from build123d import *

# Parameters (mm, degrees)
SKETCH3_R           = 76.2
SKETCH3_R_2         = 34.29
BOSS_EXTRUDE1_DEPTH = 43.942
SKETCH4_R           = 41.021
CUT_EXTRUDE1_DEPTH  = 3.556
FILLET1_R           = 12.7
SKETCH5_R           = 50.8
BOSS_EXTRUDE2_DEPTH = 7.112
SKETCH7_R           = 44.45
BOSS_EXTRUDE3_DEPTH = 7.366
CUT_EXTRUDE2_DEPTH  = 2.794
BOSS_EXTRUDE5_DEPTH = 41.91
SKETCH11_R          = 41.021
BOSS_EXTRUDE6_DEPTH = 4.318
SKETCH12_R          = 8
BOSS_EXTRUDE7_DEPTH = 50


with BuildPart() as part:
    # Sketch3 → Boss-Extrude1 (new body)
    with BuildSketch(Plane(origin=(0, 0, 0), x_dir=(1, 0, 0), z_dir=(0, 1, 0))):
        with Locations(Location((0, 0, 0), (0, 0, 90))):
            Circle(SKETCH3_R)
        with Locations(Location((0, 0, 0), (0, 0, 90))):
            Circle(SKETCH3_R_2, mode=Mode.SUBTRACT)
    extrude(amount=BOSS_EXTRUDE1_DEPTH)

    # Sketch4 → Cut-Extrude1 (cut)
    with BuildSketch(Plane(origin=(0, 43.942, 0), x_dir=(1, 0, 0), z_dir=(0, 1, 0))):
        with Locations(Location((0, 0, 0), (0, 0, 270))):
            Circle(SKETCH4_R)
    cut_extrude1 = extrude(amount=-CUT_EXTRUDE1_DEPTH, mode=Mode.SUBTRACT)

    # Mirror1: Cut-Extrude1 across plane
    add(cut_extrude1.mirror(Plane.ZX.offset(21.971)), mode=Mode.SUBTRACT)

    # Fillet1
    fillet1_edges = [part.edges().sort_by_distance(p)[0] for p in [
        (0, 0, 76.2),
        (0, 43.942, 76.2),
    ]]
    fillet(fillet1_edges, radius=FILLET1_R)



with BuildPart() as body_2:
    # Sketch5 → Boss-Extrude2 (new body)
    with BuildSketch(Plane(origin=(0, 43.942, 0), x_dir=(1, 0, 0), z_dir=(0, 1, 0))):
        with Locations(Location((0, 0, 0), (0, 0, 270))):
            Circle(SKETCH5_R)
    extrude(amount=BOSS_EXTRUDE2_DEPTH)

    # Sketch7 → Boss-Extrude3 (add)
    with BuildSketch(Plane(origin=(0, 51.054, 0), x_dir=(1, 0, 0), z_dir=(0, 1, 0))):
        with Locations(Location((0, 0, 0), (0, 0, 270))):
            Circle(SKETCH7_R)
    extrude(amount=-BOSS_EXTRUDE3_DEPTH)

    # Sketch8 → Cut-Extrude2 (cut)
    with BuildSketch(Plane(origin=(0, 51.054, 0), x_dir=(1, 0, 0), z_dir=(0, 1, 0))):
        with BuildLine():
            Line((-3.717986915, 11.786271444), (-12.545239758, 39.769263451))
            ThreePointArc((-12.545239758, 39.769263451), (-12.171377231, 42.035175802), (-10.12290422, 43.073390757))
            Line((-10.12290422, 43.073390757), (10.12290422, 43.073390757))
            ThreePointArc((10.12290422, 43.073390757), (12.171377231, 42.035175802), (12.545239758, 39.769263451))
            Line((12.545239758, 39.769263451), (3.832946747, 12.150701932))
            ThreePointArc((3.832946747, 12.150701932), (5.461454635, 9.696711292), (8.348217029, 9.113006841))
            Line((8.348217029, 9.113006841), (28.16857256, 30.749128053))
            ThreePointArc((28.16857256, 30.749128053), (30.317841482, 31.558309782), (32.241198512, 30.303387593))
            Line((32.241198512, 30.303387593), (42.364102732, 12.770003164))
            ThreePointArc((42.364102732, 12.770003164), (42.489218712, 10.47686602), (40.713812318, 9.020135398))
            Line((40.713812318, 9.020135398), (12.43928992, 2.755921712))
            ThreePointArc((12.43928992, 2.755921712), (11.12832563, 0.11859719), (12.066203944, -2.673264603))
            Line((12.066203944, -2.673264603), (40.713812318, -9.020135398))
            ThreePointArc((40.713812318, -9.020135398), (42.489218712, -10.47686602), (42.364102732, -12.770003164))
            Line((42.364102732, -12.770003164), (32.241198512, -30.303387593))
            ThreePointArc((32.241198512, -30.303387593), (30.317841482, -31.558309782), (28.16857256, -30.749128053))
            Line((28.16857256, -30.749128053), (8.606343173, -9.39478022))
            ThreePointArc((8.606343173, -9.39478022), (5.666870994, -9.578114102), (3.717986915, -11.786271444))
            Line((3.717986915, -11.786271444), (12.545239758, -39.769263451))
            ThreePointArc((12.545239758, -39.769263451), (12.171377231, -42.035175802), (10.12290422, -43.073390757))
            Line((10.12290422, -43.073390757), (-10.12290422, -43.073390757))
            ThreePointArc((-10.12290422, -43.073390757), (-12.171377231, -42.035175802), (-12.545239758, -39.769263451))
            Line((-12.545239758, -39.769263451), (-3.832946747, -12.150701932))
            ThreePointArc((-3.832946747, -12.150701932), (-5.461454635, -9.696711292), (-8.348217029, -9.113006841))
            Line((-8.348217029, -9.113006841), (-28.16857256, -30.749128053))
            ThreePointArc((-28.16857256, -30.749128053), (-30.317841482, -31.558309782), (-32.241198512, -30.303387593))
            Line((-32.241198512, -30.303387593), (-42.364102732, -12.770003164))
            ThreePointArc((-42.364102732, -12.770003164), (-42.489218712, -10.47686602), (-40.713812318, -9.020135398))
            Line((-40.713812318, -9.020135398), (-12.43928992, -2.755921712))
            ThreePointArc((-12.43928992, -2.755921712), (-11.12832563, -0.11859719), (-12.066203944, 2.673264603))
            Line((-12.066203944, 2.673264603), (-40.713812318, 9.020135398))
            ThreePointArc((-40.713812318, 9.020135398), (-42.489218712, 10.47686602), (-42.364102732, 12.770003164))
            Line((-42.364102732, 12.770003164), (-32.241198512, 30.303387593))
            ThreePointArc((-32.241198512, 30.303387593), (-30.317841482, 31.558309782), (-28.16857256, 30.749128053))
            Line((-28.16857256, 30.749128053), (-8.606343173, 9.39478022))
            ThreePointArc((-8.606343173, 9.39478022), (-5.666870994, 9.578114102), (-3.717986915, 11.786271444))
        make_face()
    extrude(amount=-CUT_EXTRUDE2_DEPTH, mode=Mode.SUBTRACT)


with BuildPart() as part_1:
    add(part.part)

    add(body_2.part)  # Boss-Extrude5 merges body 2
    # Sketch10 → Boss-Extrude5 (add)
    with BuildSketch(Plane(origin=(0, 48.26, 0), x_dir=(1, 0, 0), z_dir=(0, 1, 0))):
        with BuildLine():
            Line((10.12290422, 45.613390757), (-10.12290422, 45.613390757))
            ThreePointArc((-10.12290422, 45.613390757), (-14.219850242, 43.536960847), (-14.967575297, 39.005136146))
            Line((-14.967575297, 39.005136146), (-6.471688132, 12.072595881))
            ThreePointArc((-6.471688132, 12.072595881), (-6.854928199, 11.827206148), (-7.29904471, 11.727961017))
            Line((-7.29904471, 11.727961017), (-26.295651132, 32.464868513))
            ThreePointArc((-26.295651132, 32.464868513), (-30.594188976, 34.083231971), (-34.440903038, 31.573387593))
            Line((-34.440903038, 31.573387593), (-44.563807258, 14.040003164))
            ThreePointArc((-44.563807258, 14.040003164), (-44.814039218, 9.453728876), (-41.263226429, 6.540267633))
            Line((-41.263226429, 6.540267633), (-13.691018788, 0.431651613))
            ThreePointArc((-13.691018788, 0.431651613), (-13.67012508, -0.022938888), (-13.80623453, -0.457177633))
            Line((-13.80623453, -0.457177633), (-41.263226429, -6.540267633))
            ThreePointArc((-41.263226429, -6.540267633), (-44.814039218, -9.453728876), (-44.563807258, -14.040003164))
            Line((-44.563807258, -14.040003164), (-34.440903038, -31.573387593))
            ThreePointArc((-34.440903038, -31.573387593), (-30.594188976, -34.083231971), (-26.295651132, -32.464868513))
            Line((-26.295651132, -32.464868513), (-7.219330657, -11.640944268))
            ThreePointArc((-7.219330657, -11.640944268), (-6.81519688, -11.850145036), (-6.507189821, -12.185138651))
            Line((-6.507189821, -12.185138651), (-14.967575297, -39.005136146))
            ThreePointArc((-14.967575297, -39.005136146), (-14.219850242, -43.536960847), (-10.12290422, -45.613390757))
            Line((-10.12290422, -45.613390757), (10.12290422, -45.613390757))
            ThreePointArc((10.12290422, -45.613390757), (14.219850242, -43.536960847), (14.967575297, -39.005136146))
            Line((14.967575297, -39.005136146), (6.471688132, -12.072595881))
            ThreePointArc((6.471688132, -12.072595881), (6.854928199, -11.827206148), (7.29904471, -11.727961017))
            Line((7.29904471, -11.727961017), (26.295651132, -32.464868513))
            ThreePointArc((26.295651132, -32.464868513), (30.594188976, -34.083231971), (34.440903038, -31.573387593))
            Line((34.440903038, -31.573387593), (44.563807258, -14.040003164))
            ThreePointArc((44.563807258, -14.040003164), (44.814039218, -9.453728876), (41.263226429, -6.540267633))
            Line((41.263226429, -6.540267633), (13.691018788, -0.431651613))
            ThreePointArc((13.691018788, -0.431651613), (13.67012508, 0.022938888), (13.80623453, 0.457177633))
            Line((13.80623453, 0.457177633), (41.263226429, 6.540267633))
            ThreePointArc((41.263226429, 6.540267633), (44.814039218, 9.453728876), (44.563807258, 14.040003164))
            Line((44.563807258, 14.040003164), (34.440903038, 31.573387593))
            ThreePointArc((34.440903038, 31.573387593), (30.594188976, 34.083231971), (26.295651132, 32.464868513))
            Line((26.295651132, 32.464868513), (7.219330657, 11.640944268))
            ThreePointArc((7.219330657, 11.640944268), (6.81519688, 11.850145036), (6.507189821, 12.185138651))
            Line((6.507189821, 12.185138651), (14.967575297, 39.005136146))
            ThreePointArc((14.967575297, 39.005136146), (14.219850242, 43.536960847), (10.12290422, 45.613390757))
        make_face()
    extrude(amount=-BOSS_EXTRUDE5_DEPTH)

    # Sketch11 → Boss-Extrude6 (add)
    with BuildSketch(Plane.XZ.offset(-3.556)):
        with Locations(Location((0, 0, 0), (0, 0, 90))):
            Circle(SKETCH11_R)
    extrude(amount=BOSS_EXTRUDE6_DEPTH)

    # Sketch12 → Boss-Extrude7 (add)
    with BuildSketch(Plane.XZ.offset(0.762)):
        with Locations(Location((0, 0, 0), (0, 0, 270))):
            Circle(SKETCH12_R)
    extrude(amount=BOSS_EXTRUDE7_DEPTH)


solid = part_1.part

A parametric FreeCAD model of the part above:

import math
import FreeCAD as App
import Part
import Sketcher
from FreeCAD import Vector
Q = App.Units.Quantity


def edges_at(feature, points):
    """Names of the edges that pass closest to the given points."""
    edges = feature.Shape.Edges
    near = lambda p: min(range(len(edges)), key=lambda i: edges[i].distToShape(Part.Vertex(*p))[0])
    return sorted({f"Edge{near(p) + 1}" for p in points})

doc = App.newDocument("Part")
body = doc.addObject("PartDesign::Body", "Body")

sketch1 = body.newObject("Sketcher::SketchObject", "Sketch")
sketch1.AttachmentSupport = (doc.getObject("XZ_Plane"), [""])
sketch1.MapMode = "FlatFace"
sketch1.addGeometry(Part.Circle(Vector(0, 0, 0), Vector(0, 0, 1), 76), False)
sketch1.addGeometry(Part.Circle(Vector(0, 0, 0), Vector(0, 0, 1), 34), False)
sketch1.addConstraint(Sketcher.Constraint("Coincident", 0, 3, -1, 1))
sketch1.addConstraint(Sketcher.Constraint("Coincident", 1, 3, -1, 1))
sketch1.addConstraint(Sketcher.Constraint("Diameter", 0, Q("6 in")))
sketch1.addConstraint(Sketcher.Constraint("Diameter", 1, Q("2.7 in")))
pad1 = body.newObject("PartDesign::Pad", "Pad")
pad1.Profile = sketch1
pad1.Length = Q("1.73 in")
pad1.Reversed = True

sketch2 = body.newObject("Sketcher::SketchObject", "Sketch001")
sketch2.AttachmentSupport = (doc.getObject("XZ_Plane"), [""])
sketch2.MapMode = "FlatFace"
sketch2.AttachmentOffset = App.Placement(Vector(0, 0, -1.73 * 25.4), App.Rotation())
sketch2.addGeometry(Part.Circle(Vector(0, 0, 0), Vector(0, 0, 1), 41), False)
sketch2.addConstraint(Sketcher.Constraint("Coincident", 0, 3, -1, 1))
sketch2.addConstraint(Sketcher.Constraint("Diameter", 0, Q("3.23 in")))
pocket1 = body.newObject("PartDesign::Pocket", "Pocket")
pocket1.Profile = sketch2
pocket1.Length = Q("0.14 in")
pocket1.Reversed = True
doc.recompute()

datumplane = body.newObject("PartDesign::Plane", "DatumPlane")
datumplane.AttachmentSupport = (doc.getObject("XZ_Plane"), [""])
datumplane.MapMode = "FlatFace"
datumplane.AttachmentOffset = App.Placement(Vector(0, 0, -0.865 * 25.4), App.Rotation())
mirrored = body.newObject("PartDesign::Mirrored", "Mirrored")
mirrored.Originals = [pocket1]
mirrored.MirrorPlane = (datumplane, [""])
body.Tip = mirrored
doc.recompute()

fillet = body.newObject("PartDesign::Fillet", "Fillet")
fillet.Base = (mirrored, edges_at(mirrored, [(0, 0, 76.2), (0, 43.942, 76.2)]))
fillet.Radius = Q("0.5 in")
body2 = doc.addObject("PartDesign::Body", "Body001")

sketch3 = body2.newObject("Sketcher::SketchObject", "Sketch002")
sketch3.AttachmentSupport = (doc.getObject("XZ_Plane001"), [""])
sketch3.MapMode = "FlatFace"
sketch3.AttachmentOffset = App.Placement(Vector(0, 0, -1.73 * 25.4), App.Rotation())
sketch3.addGeometry(Part.Circle(Vector(0, 0, 0), Vector(0, 0, 1), 51), False)
sketch3.addConstraint(Sketcher.Constraint("Coincident", 0, 3, -1, 1))
sketch3.addConstraint(Sketcher.Constraint("Diameter", 0, Q("4 in")))
pad2 = body2.newObject("PartDesign::Pad", "Pad001")
pad2.Profile = sketch3
pad2.Length = Q("0.28 in")
pad2.Reversed = True

sketch4 = body2.newObject("Sketcher::SketchObject", "Sketch003")
sketch4.AttachmentSupport = (doc.getObject("XZ_Plane001"), [""])
sketch4.MapMode = "FlatFace"
sketch4.AttachmentOffset = App.Placement(Vector(0, 0, -2.01 * 25.4), App.Rotation())
sketch4.addGeometry(Part.Circle(Vector(0, 0, 0), Vector(0, 0, 1), 44), False)
sketch4.addConstraint(Sketcher.Constraint("Coincident", 0, 3, -1, 1))
sketch4.addConstraint(Sketcher.Constraint("Diameter", 0, Q("3.5 in")))
pad3 = body2.newObject("PartDesign::Pad", "Pad002")
pad3.Profile = sketch4
pad3.Length = Q("0.29 in")

sketch5 = body2.newObject("Sketcher::SketchObject", "Sketch004")
sketch5.AttachmentSupport = (doc.getObject("XZ_Plane001"), [""])
sketch5.MapMode = "FlatFace"
sketch5.AttachmentOffset = App.Placement(Vector(0, 0, -2.01 * 25.4), App.Rotation())
sketch5.addGeometry(Part.LineSegment(Vector(-12.5, -39.8, 0), Vector(-3.7, -11.8, 0)), False)
sketch5.addGeometry(Part.ArcOfCircle(Part.Circle(Vector(-7.4, -13, 0), Vector(0, 0, 1), 3.8), math.radians(19), math.radians(109)), False)
sketch5.addGeometry(Part.LineSegment(Vector(-8.6, -9.4, 0), Vector(-28.2, -30.7, 0)), False)
sketch5.addGeometry(Part.ArcOfCircle(Part.Circle(Vector(-30, -29, 0), Vector(0, 0, 1), 2.5), math.radians(-150), math.radians(-42)), False)
sketch5.addGeometry(Part.LineSegment(Vector(-32.2, -30.3, 0), Vector(-42.4, -12.8, 0)), False)
sketch5.addGeometry(Part.ArcOfCircle(Part.Circle(Vector(-40.2, -11.5, 0), Vector(0, 0, 1), 2.5), math.radians(102), math.radians(210)), False)
sketch5.addGeometry(Part.LineSegment(Vector(-40.7, -9, 0), Vector(-12.1, -2.7, 0)), False)
sketch5.addGeometry(Part.ArcOfCircle(Part.Circle(Vector(-15, -0.1, 0), Vector(0, 0, 1), 3.8), math.radians(-41), math.radians(49)), False)
sketch5.addGeometry(Part.LineSegment(Vector(-12.4, 2.8, 0), Vector(-40.7, 9, 0)), False)
sketch5.addGeometry(Part.ArcOfCircle(Part.Circle(Vector(-40.2, 11.5, 0), Vector(0, 0, 1), 2.5), math.radians(150), math.radians(258)), False)
sketch5.addGeometry(Part.LineSegment(Vector(-42.4, 12.8, 0), Vector(-32.2, 30.3, 0)), False)
sketch5.addGeometry(Part.ArcOfCircle(Part.Circle(Vector(-30, 29, 0), Vector(0, 0, 1), 2.5), math.radians(42), math.radians(150)), False)
sketch5.addGeometry(Part.LineSegment(Vector(-28.2, 30.7, 0), Vector(-8.3, 9.1, 0)), False)
sketch5.addGeometry(Part.ArcOfCircle(Part.Circle(Vector(-7.6, 12.9, 0), Vector(0, 0, 1), 3.8), math.radians(-101), math.radians(-11)), False)
sketch5.addGeometry(Part.LineSegment(Vector(-3.8, 12.2, 0), Vector(-12.5, 39.8, 0)), False)
sketch5.addGeometry(Part.ArcOfCircle(Part.Circle(Vector(-10.1, 40.5, 0), Vector(0, 0, 1), 2.5), math.radians(90), math.radians(198)), False)
sketch5.addGeometry(Part.LineSegment(Vector(-10.1, 43.1, 0), Vector(10.1, 43.1, 0)), False)
sketch5.addGeometry(Part.ArcOfCircle(Part.Circle(Vector(10.1, 40.5, 0), Vector(0, 0, 1), 2.5), math.radians(-18), math.radians(90)), False)
sketch5.addGeometry(Part.LineSegment(Vector(12.5, 39.8, 0), Vector(3.7, 11.8, 0)), False)
sketch5.addGeometry(Part.ArcOfCircle(Part.Circle(Vector(7.4, 13, 0), Vector(0, 0, 1), 3.8), math.radians(-161), math.radians(-71)), False)
sketch5.addGeometry(Part.LineSegment(Vector(8.6, 9.4, 0), Vector(28.2, 30.7, 0)), False)
sketch5.addGeometry(Part.ArcOfCircle(Part.Circle(Vector(30, 29, 0), Vector(0, 0, 1), 2.5), math.radians(30), math.radians(138)), False)
sketch5.addGeometry(Part.LineSegment(Vector(32.2, 30.3, 0), Vector(42.4, 12.8, 0)), False)
sketch5.addGeometry(Part.ArcOfCircle(Part.Circle(Vector(40.2, 11.5, 0), Vector(0, 0, 1), 2.5), math.radians(-78), math.radians(30)), False)
sketch5.addGeometry(Part.LineSegment(Vector(40.7, 9, 0), Vector(12.1, 2.7, 0)), False)
sketch5.addGeometry(Part.ArcOfCircle(Part.Circle(Vector(15, 0.1, 0), Vector(0, 0, 1), 3.8), math.radians(139), math.radians(229)), False)
sketch5.addGeometry(Part.LineSegment(Vector(12.4, -2.8, 0), Vector(40.7, -9, 0)), False)
sketch5.addGeometry(Part.ArcOfCircle(Part.Circle(Vector(40.2, -11.5, 0), Vector(0, 0, 1), 2.5), math.radians(-30), math.radians(78)), False)
sketch5.addGeometry(Part.LineSegment(Vector(42.4, -12.8, 0), Vector(32.2, -30.3, 0)), False)
sketch5.addGeometry(Part.ArcOfCircle(Part.Circle(Vector(30, -29, 0), Vector(0, 0, 1), 2.5), math.radians(-138), math.radians(-30)), False)
sketch5.addGeometry(Part.LineSegment(Vector(28.2, -30.7, 0), Vector(8.3, -9.1, 0)), False)
sketch5.addGeometry(Part.ArcOfCircle(Part.Circle(Vector(7.6, -12.9, 0), Vector(0, 0, 1), 3.8), math.radians(79), math.radians(169)), False)
sketch5.addGeometry(Part.LineSegment(Vector(3.8, -12.2, 0), Vector(12.5, -39.8, 0)), False)
sketch5.addGeometry(Part.ArcOfCircle(Part.Circle(Vector(10.1, -40.5, 0), Vector(0, 0, 1), 2.5), math.radians(-90), math.radians(18)), False)
sketch5.addGeometry(Part.LineSegment(Vector(10.1, -43.1, 0), Vector(-10.1, -43.1, 0)), False)
sketch5.addGeometry(Part.ArcOfCircle(Part.Circle(Vector(-10.1, -40.5, 0), Vector(0, 0, 1), 2.5), math.radians(162), math.radians(270)), False)
sketch5.addConstraint(Sketcher.Constraint("Coincident", 0, 2, 1, 1))
sketch5.addConstraint(Sketcher.Constraint("Coincident", 1, 2, 2, 1))
sketch5.addConstraint(Sketcher.Constraint("Tangent", 2, 2, 3, 2))
sketch5.addConstraint(Sketcher.Constraint("Tangent", 3, 1, 4, 1))
sketch5.addConstraint(Sketcher.Constraint("Tangent", 4, 2, 5, 2))
sketch5.addConstraint(Sketcher.Constraint("Tangent", 5, 1, 6, 1))
sketch5.addConstraint(Sketcher.Constraint("Coincident", 6, 2, 7, 1))
sketch5.addConstraint(Sketcher.Constraint("Coincident", 7, 2, 8, 1))
sketch5.addConstraint(Sketcher.Constraint("Tangent", 8, 2, 9, 2))
sketch5.addConstraint(Sketcher.Constraint("Tangent", 9, 1, 10, 1))
sketch5.addConstraint(Sketcher.Constraint("Tangent", 10, 2, 11, 2))
sketch5.addConstraint(Sketcher.Constraint("Tangent", 11, 1, 12, 1))
sketch5.addConstraint(Sketcher.Constraint("Coincident", 12, 2, 13, 1))
sketch5.addConstraint(Sketcher.Constraint("Coincident", 13, 2, 14, 1))
sketch5.addConstraint(Sketcher.Constraint("Tangent", 14, 2, 15, 2))
sketch5.addConstraint(Sketcher.Constraint("Tangent", 15, 1, 16, 1))
sketch5.addConstraint(Sketcher.Constraint("Tangent", 16, 2, 17, 2))
sketch5.addConstraint(Sketcher.Constraint("Tangent", 17, 1, 18, 1))
sketch5.addConstraint(Sketcher.Constraint("Coincident", 18, 2, 19, 1))
sketch5.addConstraint(Sketcher.Constraint("Coincident", 19, 2, 20, 1))
sketch5.addConstraint(Sketcher.Constraint("Tangent", 20, 2, 21, 2))
sketch5.addConstraint(Sketcher.Constraint("Tangent", 21, 1, 22, 1))
sketch5.addConstraint(Sketcher.Constraint("Tangent", 22, 2, 23, 2))
sketch5.addConstraint(Sketcher.Constraint("Tangent", 23, 1, 24, 1))
sketch5.addConstraint(Sketcher.Constraint("Coincident", 24, 2, 25, 1))
sketch5.addConstraint(Sketcher.Constraint("Coincident", 25, 2, 26, 1))
sketch5.addConstraint(Sketcher.Constraint("Tangent", 26, 2, 27, 2))
sketch5.addConstraint(Sketcher.Constraint("Tangent", 27, 1, 28, 1))
sketch5.addConstraint(Sketcher.Constraint("Tangent", 28, 2, 29, 2))
sketch5.addConstraint(Sketcher.Constraint("Tangent", 29, 1, 30, 1))
sketch5.addConstraint(Sketcher.Constraint("Coincident", 30, 2, 31, 1))
sketch5.addConstraint(Sketcher.Constraint("Coincident", 31, 2, 32, 1))
sketch5.addConstraint(Sketcher.Constraint("Tangent", 32, 2, 33, 2))
sketch5.addConstraint(Sketcher.Constraint("Tangent", 33, 1, 34, 1))
sketch5.addConstraint(Sketcher.Constraint("Tangent", 34, 2, 35, 2))
sketch5.addConstraint(Sketcher.Constraint("Tangent", 35, 1, 0, 1))
sketch5.addConstraint(Sketcher.Constraint("Horizontal", 16))
sketch5.addConstraint(Sketcher.Constraint("Horizontal", 34))
sketch5.addConstraint(Sketcher.Constraint("Equal", 3, 5))
sketch5.addConstraint(Sketcher.Constraint("Equal", 1, 7))
sketch5.addConstraint(Sketcher.Constraint("Equal", 5, 9))
sketch5.addConstraint(Sketcher.Constraint("Equal", 9, 11))
sketch5.addConstraint(Sketcher.Constraint("Equal", 7, 13))
sketch5.addConstraint(Sketcher.Constraint("Equal", 11, 15))
sketch5.addConstraint(Sketcher.Constraint("Equal", 15, 17))
sketch5.addConstraint(Sketcher.Constraint("Equal", 13, 19))
sketch5.addConstraint(Sketcher.Constraint("Equal", 17, 21))
sketch5.addConstraint(Sketcher.Constraint("Equal", 21, 23))
sketch5.addConstraint(Sketcher.Constraint("Equal", 19, 25))
sketch5.addConstraint(Sketcher.Constraint("Equal", 23, 27))
sketch5.addConstraint(Sketcher.Constraint("Equal", 27, 29))
sketch5.addConstraint(Sketcher.Constraint("Equal", 25, 31))
sketch5.addConstraint(Sketcher.Constraint("Equal", 29, 33))
sketch5.addConstraint(Sketcher.Constraint("Equal", 33, 35))
sketch5.addConstraint(Sketcher.Constraint("Symmetric", 1, 3, 19, 3, -1, 1))
sketch5.addConstraint(Sketcher.Constraint("Symmetric", 3, 3, 21, 3, -1, 1))
sketch5.addConstraint(Sketcher.Constraint("Symmetric", 5, 3, 23, 3, -1, 1))
sketch5.addConstraint(Sketcher.Constraint("Symmetric", 7, 3, 25, 3, -1, 1))
sketch5.addConstraint(Sketcher.Constraint("Symmetric", 9, 3, 27, 3, -1, 1))
sketch5.addConstraint(Sketcher.Constraint("Symmetric", 11, 3, 29, 3, -1, 1))
sketch5.addConstraint(Sketcher.Constraint("Symmetric", 13, 3, 31, 3, -1, 1))
sketch5.addConstraint(Sketcher.Constraint("Symmetric", 15, 3, 33, 3, -1, 1))
sketch5.addConstraint(Sketcher.Constraint("Symmetric", 17, 1, 35, 1, -1, 1))
sketch5.addConstraint(Sketcher.Constraint("Symmetric", 11, 3, 21, 3, -2))
sketch5.addConstraint(Sketcher.Constraint("Symmetric", 9, 3, 23, 3, -2))
sketch5.addConstraint(Sketcher.Constraint("Symmetric", 14, 2, 17, 1, -2))
sketch5.addConstraint(Sketcher.Constraint("Parallel", 2, 20))
sketch5.addConstraint(Sketcher.Constraint("Parallel", 6, 24))
sketch5.addConstraint(Sketcher.Constraint("Parallel", 8, 26))
sketch5.addConstraint(Sketcher.Constraint("Parallel", 12, 30))
sketch5.addConstraint(Sketcher.Constraint("Parallel", 14, 32))
sketch5.addConstraint(Sketcher.Constraint("Horizontal", 11, 1, 20, 2))
sketch5.addConstraint(Sketcher.Constraint("Horizontal", 8, 2, 23, 1))
sketch5.addConstraint(Sketcher.Constraint("Equal", 0, 6))
sketch5.addConstraint(Sketcher.Constraint("Equal", 2, 8))
sketch5.addConstraint(Sketcher.Constraint("Equal", 6, 12))
sketch5.addConstraint(Sketcher.Constraint("Equal", 8, 14))
sketch5.addConstraint(Sketcher.Constraint("Radius", 3, Q("0.1 in")))
sketch5.addConstraint(Sketcher.Constraint("Angle", 4, Q("120 deg")))
sketch5.addConstraint(Sketcher.Constraint("Radius", 1, Q("3.848068 mm")))
sketch5.addConstraint(Sketcher.Constraint("DistanceX", 16, 1, 16, 2, Q("20.245808 mm")))
sketch5.addConstraint(Sketcher.Constraint("DistanceX", 5, 3, -1, 1, Q("40.164398 mm")))
sketch5.addConstraint(Sketcher.Constraint("DistanceX", 3, 1, -1, 1, Q("32.241199 mm")))
sketch5.addConstraint(Sketcher.Constraint("DistanceY", -1, 1, 13, 2, Q("12.150702 mm")))
sketch5.addConstraint(Sketcher.Constraint("DistanceY", 1, 3, 5, 3, Q("1.534701 mm")))
sketch5.addConstraint(Sketcher.Constraint("DistanceY", 13, 3, 11, 3, Q("16.143898 mm")))
sketch5.addConstraint(Sketcher.Constraint("DistanceY", 13, 3, 15, 3, Q("27.643901 mm")))
sketch5.addConstraint(Sketcher.Constraint("DistanceY", 1, 2, 7, 2, Q("12.150702 mm")))
sketch5.addConstraint(Sketcher.Constraint("Distance", 0, Q("29.34226 mm")))
sketch5.addConstraint(Sketcher.Constraint("DistanceX", 1, 3, -1, 1, Q("7.357911 mm")))
pocket2 = body2.newObject("PartDesign::Pocket", "Pocket001")
pocket2.Profile = sketch5
pocket2.Length = Q("0.11 in")
pocket2.Reversed = True
doc.recompute()

boolean = body.newObject("PartDesign::Boolean", "Boolean")
boolean.Type = "Fuse"
boolean.addObjects([body2])

sketch6 = body.newObject("Sketcher::SketchObject", "Sketch005")
sketch6.AttachmentSupport = (doc.getObject("XZ_Plane"), [""])
sketch6.MapMode = "FlatFace"
sketch6.AttachmentOffset = App.Placement(Vector(0, 0, -1.9 * 25.4), App.Rotation())
sketch6.addGeometry(Part.LineSegment(Vector(10.1, -45.6, 0), Vector(-10.1, -45.6, 0)), False)
sketch6.addGeometry(Part.ArcOfCircle(Part.Circle(Vector(-10.1, -40.5, 0), Vector(0, 0, 1), 5.1), math.radians(162), math.radians(270)), False)
sketch6.addGeometry(Part.LineSegment(Vector(-15, -39, 0), Vector(-6.5, -12.1, 0)), False)
sketch6.addGeometry(Part.ArcOfCircle(Part.Circle(Vector(-7.4, -13, 0), Vector(0, 0, 1), 1.3), math.radians(47), math.radians(87)), False)
sketch6.addGeometry(Part.LineSegment(Vector(-7.3, -11.7, 0), Vector(-26.3, -32.5, 0)), False)
sketch6.addGeometry(Part.ArcOfCircle(Part.Circle(Vector(-30, -29, 0), Vector(0, 0, 1), 5.1), math.radians(-150), math.radians(-42)), False)
sketch6.addGeometry(Part.LineSegment(Vector(-34.4, -31.6, 0), Vector(-44.6, -14, 0)), False)
sketch6.addGeometry(Part.ArcOfCircle(Part.Circle(Vector(-40.2, -11.5, 0), Vector(0, 0, 1), 5.1), math.radians(102), math.radians(210)), False)
sketch6.addGeometry(Part.LineSegment(Vector(-41.3, -6.5, 0), Vector(-13.7, -0.4, 0)), False)
sketch6.addGeometry(Part.ArcOfCircle(Part.Circle(Vector(-15, -0.1, 0), Vector(0, 0, 1), 1.3), math.radians(-13), math.radians(27)), False)
sketch6.addGeometry(Part.LineSegment(Vector(-13.8, 0.5, 0), Vector(-41.3, 6.5, 0)), False)
sketch6.addGeometry(Part.ArcOfCircle(Part.Circle(Vector(-40.2, 11.5, 0), Vector(0, 0, 1), 5.1), math.radians(150), math.radians(258)), False)
sketch6.addGeometry(Part.LineSegment(Vector(-44.6, 14, 0), Vector(-34.4, 31.6, 0)), False)
sketch6.addGeometry(Part.ArcOfCircle(Part.Circle(Vector(-30, 29, 0), Vector(0, 0, 1), 5.1), math.radians(42), math.radians(150)), False)
sketch6.addGeometry(Part.LineSegment(Vector(-26.3, 32.5, 0), Vector(-7.2, 11.6, 0)), False)
sketch6.addGeometry(Part.ArcOfCircle(Part.Circle(Vector(-7.6, 12.9, 0), Vector(0, 0, 1), 1.3), math.radians(-73), math.radians(-33)), False)
sketch6.addGeometry(Part.LineSegment(Vector(-6.5, 12.2, 0), Vector(-15, 39, 0)), False)
sketch6.addGeometry(Part.ArcOfCircle(Part.Circle(Vector(-10.1, 40.5, 0), Vector(0, 0, 1), 5.1), math.radians(90), math.radians(198)), False)
sketch6.addGeometry(Part.LineSegment(Vector(-10.1, 45.6, 0), Vector(10.1, 45.6, 0)), False)
sketch6.addGeometry(Part.ArcOfCircle(Part.Circle(Vector(10.1, 40.5, 0), Vector(0, 0, 1), 5.1), math.radians(-18), math.radians(90)), False)
sketch6.addGeometry(Part.LineSegment(Vector(15, 39, 0), Vector(6.5, 12.1, 0)), False)
sketch6.addGeometry(Part.ArcOfCircle(Part.Circle(Vector(7.4, 13, 0), Vector(0, 0, 1), 1.3), math.radians(-133), math.radians(-93)), False)
sketch6.addGeometry(Part.LineSegment(Vector(7.3, 11.7, 0), Vector(26.3, 32.5, 0)), False)
sketch6.addGeometry(Part.ArcOfCircle(Part.Circle(Vector(30, 29, 0), Vector(0, 0, 1), 5.1), math.radians(30), math.radians(138)), False)
sketch6.addGeometry(Part.LineSegment(Vector(34.4, 31.6, 0), Vector(44.6, 14, 0)), False)
sketch6.addGeometry(Part.ArcOfCircle(Part.Circle(Vector(40.2, 11.5, 0), Vector(0, 0, 1), 5.1), math.radians(-78), math.radians(30)), False)
sketch6.addGeometry(Part.LineSegment(Vector(41.3, 6.5, 0), Vector(13.7, 0.4, 0)), False)
sketch6.addGeometry(Part.ArcOfCircle(Part.Circle(Vector(15, 0.1, 0), Vector(0, 0, 1), 1.3), math.radians(167), math.radians(207)), False)
sketch6.addGeometry(Part.LineSegment(Vector(13.8, -0.5, 0), Vector(41.3, -6.5, 0)), False)
sketch6.addGeometry(Part.ArcOfCircle(Part.Circle(Vector(40.2, -11.5, 0), Vector(0, 0, 1), 5.1), math.radians(-30), math.radians(78)), False)
sketch6.addGeometry(Part.LineSegment(Vector(44.6, -14, 0), Vector(34.4, -31.6, 0)), False)
sketch6.addGeometry(Part.ArcOfCircle(Part.Circle(Vector(30, -29, 0), Vector(0, 0, 1), 5.1), math.radians(-138), math.radians(-30)), False)
sketch6.addGeometry(Part.LineSegment(Vector(26.3, -32.5, 0), Vector(7.2, -11.6, 0)), False)
sketch6.addGeometry(Part.ArcOfCircle(Part.Circle(Vector(7.6, -12.9, 0), Vector(0, 0, 1), 1.3), math.radians(107), math.radians(147)), False)
sketch6.addGeometry(Part.LineSegment(Vector(6.5, -12.2, 0), Vector(15, -39, 0)), False)
sketch6.addGeometry(Part.ArcOfCircle(Part.Circle(Vector(10.1, -40.5, 0), Vector(0, 0, 1), 5.1), math.radians(-90), math.radians(18)), False)
sketch6.addConstraint(Sketcher.Constraint("Tangent", 0, 2, 1, 2))
sketch6.addConstraint(Sketcher.Constraint("Tangent", 1, 1, 2, 1))
sketch6.addConstraint(Sketcher.Constraint("Coincident", 2, 2, 3, 1))
sketch6.addConstraint(Sketcher.Constraint("Coincident", 3, 2, 4, 1))
sketch6.addConstraint(Sketcher.Constraint("Tangent", 4, 2, 5, 2))
sketch6.addConstraint(Sketcher.Constraint("Tangent", 5, 1, 6, 1))
sketch6.addConstraint(Sketcher.Constraint("Tangent", 6, 2, 7, 2))
sketch6.addConstraint(Sketcher.Constraint("Tangent", 7, 1, 8, 1))
sketch6.addConstraint(Sketcher.Constraint("Coincident", 8, 2, 9, 1))
sketch6.addConstraint(Sketcher.Constraint("Coincident", 9, 2, 10, 1))
sketch6.addConstraint(Sketcher.Constraint("Tangent", 10, 2, 11, 2))
sketch6.addConstraint(Sketcher.Constraint("Tangent", 11, 1, 12, 1))
sketch6.addConstraint(Sketcher.Constraint("Tangent", 12, 2, 13, 2))
sketch6.addConstraint(Sketcher.Constraint("Tangent", 13, 1, 14, 1))
sketch6.addConstraint(Sketcher.Constraint("Coincident", 14, 2, 15, 1))
sketch6.addConstraint(Sketcher.Constraint("Coincident", 15, 2, 16, 1))
sketch6.addConstraint(Sketcher.Constraint("Tangent", 16, 2, 17, 2))
sketch6.addConstraint(Sketcher.Constraint("Tangent", 17, 1, 18, 1))
sketch6.addConstraint(Sketcher.Constraint("Tangent", 18, 2, 19, 2))
sketch6.addConstraint(Sketcher.Constraint("Tangent", 19, 1, 20, 1))
sketch6.addConstraint(Sketcher.Constraint("Coincident", 20, 2, 21, 1))
sketch6.addConstraint(Sketcher.Constraint("Coincident", 21, 2, 22, 1))
sketch6.addConstraint(Sketcher.Constraint("Tangent", 22, 2, 23, 2))
sketch6.addConstraint(Sketcher.Constraint("Tangent", 23, 1, 24, 1))
sketch6.addConstraint(Sketcher.Constraint("Tangent", 24, 2, 25, 2))
sketch6.addConstraint(Sketcher.Constraint("Tangent", 25, 1, 26, 1))
sketch6.addConstraint(Sketcher.Constraint("Coincident", 26, 2, 27, 1))
sketch6.addConstraint(Sketcher.Constraint("Coincident", 27, 2, 28, 1))
sketch6.addConstraint(Sketcher.Constraint("Tangent", 28, 2, 29, 2))
sketch6.addConstraint(Sketcher.Constraint("Tangent", 29, 1, 30, 1))
sketch6.addConstraint(Sketcher.Constraint("Tangent", 30, 2, 31, 2))
sketch6.addConstraint(Sketcher.Constraint("Tangent", 31, 1, 32, 1))
sketch6.addConstraint(Sketcher.Constraint("Coincident", 32, 2, 33, 1))
sketch6.addConstraint(Sketcher.Constraint("Coincident", 33, 2, 34, 1))
sketch6.addConstraint(Sketcher.Constraint("Tangent", 34, 2, 35, 2))
sketch6.addConstraint(Sketcher.Constraint("Tangent", 35, 1, 0, 1))
sketch6.addConstraint(Sketcher.Constraint("Horizontal", 0))
sketch6.addConstraint(Sketcher.Constraint("Horizontal", 18))
sketch6.addConstraint(Sketcher.Constraint("Equal", 1, 5))
sketch6.addConstraint(Sketcher.Constraint("Equal", 5, 7))
sketch6.addConstraint(Sketcher.Constraint("Equal", 3, 9))
sketch6.addConstraint(Sketcher.Constraint("Equal", 7, 11))
sketch6.addConstraint(Sketcher.Constraint("Equal", 11, 13))
sketch6.addConstraint(Sketcher.Constraint("Equal", 9, 15))
sketch6.addConstraint(Sketcher.Constraint("Equal", 13, 17))
sketch6.addConstraint(Sketcher.Constraint("Equal", 17, 19))
sketch6.addConstraint(Sketcher.Constraint("Equal", 15, 21))
sketch6.addConstraint(Sketcher.Constraint("Equal", 19, 23))
sketch6.addConstraint(Sketcher.Constraint("Equal", 23, 25))
sketch6.addConstraint(Sketcher.Constraint("Equal", 21, 27))
sketch6.addConstraint(Sketcher.Constraint("Equal", 25, 29))
sketch6.addConstraint(Sketcher.Constraint("Equal", 29, 31))
sketch6.addConstraint(Sketcher.Constraint("Equal", 27, 33))
sketch6.addConstraint(Sketcher.Constraint("Equal", 31, 35))
sketch6.addConstraint(Sketcher.Constraint("Symmetric", 1, 3, 19, 3, -1, 1))
sketch6.addConstraint(Sketcher.Constraint("Symmetric", 3, 3, 21, 3, -1, 1))
sketch6.addConstraint(Sketcher.Constraint("Symmetric", 5, 3, 23, 3, -1, 1))
sketch6.addConstraint(Sketcher.Constraint("Symmetric", 7, 3, 25, 3, -1, 1))
sketch6.addConstraint(Sketcher.Constraint("Symmetric", 9, 3, 27, 3, -1, 1))
sketch6.addConstraint(Sketcher.Constraint("Symmetric", 11, 3, 29, 3, -1, 1))
sketch6.addConstraint(Sketcher.Constraint("Symmetric", 13, 3, 31, 3, -1, 1))
sketch6.addConstraint(Sketcher.Constraint("Symmetric", 15, 3, 33, 3, -1, 1))
sketch6.addConstraint(Sketcher.Constraint("Symmetric", 16, 2, 34, 2, -1, 1))
sketch6.addConstraint(Sketcher.Constraint("Symmetric", 13, 3, 23, 3, -2))
sketch6.addConstraint(Sketcher.Constraint("Symmetric", 11, 3, 25, 3, -2))
sketch6.addConstraint(Sketcher.Constraint("Symmetric", 16, 2, 19, 1, -2))
sketch6.addConstraint(Sketcher.Constraint("Parallel", 2, 20))
sketch6.addConstraint(Sketcher.Constraint("Parallel", 4, 22))
sketch6.addConstraint(Sketcher.Constraint("Parallel", 8, 26))
sketch6.addConstraint(Sketcher.Constraint("Parallel", 10, 28))
sketch6.addConstraint(Sketcher.Constraint("Parallel", 14, 32))
sketch6.addConstraint(Sketcher.Constraint("Horizontal", 13, 1, 22, 2))
sketch6.addConstraint(Sketcher.Constraint("Horizontal", 10, 2, 25, 1))
sketch6.addConstraint(Sketcher.Constraint("Equal", 2, 8))
sketch6.addConstraint(Sketcher.Constraint("Equal", 4, 10))
sketch6.addConstraint(Sketcher.Constraint("Equal", 8, 14))
sketch6.addConstraint(Sketcher.Constraint("Equal", 10, 16))
sketch6.addConstraint(Sketcher.Constraint("Radius", 1, Q("0.2 in")))
sketch6.addConstraint(Sketcher.Constraint("Angle", 6, Q("120 deg")))
sketch6.addConstraint(Sketcher.Constraint("Radius", 3, Q("1.308068 mm")))
sketch6.addConstraint(Sketcher.Constraint("DistanceX", 0, 2, 0, 1, Q("20.245808 mm")))
sketch6.addConstraint(Sketcher.Constraint("DistanceX", 7, 3, -1, 1, Q("40.164398 mm")))
sketch6.addConstraint(Sketcher.Constraint("DistanceY", 3, 3, 7, 3, Q("1.534701 mm")))
sketch6.addConstraint(Sketcher.Constraint("DistanceY", 15, 3, 13, 3, Q("16.143898 mm")))
sketch6.addConstraint(Sketcher.Constraint("DistanceY", 15, 3, 17, 3, Q("27.643901 mm")))
sketch6.addConstraint(Sketcher.Constraint("DistanceX", 13, 3, 19, 3, Q("40.164398 mm")))
sketch6.addConstraint(Sketcher.Constraint("DistanceX", 15, 3, 14, 2, Q("0.390099 mm")))
sketch6.addConstraint(Sketcher.Constraint("DistanceX", 15, 2, 21, 3, Q("13.8651 mm")))
sketch6.addConstraint(Sketcher.Constraint("DistanceY", 1, 3, -1, 1, Q("40.533391 mm")))
sketch6.addConstraint(Sketcher.Constraint("DistanceX", 9, 3, -1, 1, Q("14.96734 mm")))
pad4 = body.newObject("PartDesign::Pad", "Pad003")
pad4.Profile = sketch6
pad4.Length = Q("1.65 in")

sketch7 = body.newObject("Sketcher::SketchObject", "Sketch006")
sketch7.AttachmentSupport = (doc.getObject("XZ_Plane"), [""])
sketch7.MapMode = "FlatFace"
sketch7.AttachmentOffset = App.Placement(Vector(0, 0, -0.14 * 25.4), App.Rotation())
sketch7.addGeometry(Part.Circle(Vector(0, 0, 0), Vector(0, 0, 1), 41), False)
sketch7.addConstraint(Sketcher.Constraint("Coincident", 0, 3, -1, 1))
sketch7.addConstraint(Sketcher.Constraint("Diameter", 0, Q("3.23 in")))
pad5 = body.newObject("PartDesign::Pad", "Pad004")
pad5.Profile = sketch7
pad5.Length = Q("0.17 in")

sketch8 = body.newObject("Sketcher::SketchObject", "Sketch007")
sketch8.AttachmentSupport = (doc.getObject("XZ_Plane"), [""])
sketch8.MapMode = "FlatFace"
sketch8.AttachmentOffset = App.Placement(Vector(0, 0, 0.03 * 25.4), App.Rotation())
sketch8.addGeometry(Part.Circle(Vector(0, 0, 0), Vector(0, 0, 1), 8), False)
sketch8.addConstraint(Sketcher.Constraint("Coincident", 0, 3, -1, 1))
sketch8.addConstraint(Sketcher.Constraint("Diameter", 0, Q("16 mm")))
pad6 = body.newObject("PartDesign::Pad", "Pad005")
pad6.Profile = sketch8
pad6.Length = 50

doc.recompute()
